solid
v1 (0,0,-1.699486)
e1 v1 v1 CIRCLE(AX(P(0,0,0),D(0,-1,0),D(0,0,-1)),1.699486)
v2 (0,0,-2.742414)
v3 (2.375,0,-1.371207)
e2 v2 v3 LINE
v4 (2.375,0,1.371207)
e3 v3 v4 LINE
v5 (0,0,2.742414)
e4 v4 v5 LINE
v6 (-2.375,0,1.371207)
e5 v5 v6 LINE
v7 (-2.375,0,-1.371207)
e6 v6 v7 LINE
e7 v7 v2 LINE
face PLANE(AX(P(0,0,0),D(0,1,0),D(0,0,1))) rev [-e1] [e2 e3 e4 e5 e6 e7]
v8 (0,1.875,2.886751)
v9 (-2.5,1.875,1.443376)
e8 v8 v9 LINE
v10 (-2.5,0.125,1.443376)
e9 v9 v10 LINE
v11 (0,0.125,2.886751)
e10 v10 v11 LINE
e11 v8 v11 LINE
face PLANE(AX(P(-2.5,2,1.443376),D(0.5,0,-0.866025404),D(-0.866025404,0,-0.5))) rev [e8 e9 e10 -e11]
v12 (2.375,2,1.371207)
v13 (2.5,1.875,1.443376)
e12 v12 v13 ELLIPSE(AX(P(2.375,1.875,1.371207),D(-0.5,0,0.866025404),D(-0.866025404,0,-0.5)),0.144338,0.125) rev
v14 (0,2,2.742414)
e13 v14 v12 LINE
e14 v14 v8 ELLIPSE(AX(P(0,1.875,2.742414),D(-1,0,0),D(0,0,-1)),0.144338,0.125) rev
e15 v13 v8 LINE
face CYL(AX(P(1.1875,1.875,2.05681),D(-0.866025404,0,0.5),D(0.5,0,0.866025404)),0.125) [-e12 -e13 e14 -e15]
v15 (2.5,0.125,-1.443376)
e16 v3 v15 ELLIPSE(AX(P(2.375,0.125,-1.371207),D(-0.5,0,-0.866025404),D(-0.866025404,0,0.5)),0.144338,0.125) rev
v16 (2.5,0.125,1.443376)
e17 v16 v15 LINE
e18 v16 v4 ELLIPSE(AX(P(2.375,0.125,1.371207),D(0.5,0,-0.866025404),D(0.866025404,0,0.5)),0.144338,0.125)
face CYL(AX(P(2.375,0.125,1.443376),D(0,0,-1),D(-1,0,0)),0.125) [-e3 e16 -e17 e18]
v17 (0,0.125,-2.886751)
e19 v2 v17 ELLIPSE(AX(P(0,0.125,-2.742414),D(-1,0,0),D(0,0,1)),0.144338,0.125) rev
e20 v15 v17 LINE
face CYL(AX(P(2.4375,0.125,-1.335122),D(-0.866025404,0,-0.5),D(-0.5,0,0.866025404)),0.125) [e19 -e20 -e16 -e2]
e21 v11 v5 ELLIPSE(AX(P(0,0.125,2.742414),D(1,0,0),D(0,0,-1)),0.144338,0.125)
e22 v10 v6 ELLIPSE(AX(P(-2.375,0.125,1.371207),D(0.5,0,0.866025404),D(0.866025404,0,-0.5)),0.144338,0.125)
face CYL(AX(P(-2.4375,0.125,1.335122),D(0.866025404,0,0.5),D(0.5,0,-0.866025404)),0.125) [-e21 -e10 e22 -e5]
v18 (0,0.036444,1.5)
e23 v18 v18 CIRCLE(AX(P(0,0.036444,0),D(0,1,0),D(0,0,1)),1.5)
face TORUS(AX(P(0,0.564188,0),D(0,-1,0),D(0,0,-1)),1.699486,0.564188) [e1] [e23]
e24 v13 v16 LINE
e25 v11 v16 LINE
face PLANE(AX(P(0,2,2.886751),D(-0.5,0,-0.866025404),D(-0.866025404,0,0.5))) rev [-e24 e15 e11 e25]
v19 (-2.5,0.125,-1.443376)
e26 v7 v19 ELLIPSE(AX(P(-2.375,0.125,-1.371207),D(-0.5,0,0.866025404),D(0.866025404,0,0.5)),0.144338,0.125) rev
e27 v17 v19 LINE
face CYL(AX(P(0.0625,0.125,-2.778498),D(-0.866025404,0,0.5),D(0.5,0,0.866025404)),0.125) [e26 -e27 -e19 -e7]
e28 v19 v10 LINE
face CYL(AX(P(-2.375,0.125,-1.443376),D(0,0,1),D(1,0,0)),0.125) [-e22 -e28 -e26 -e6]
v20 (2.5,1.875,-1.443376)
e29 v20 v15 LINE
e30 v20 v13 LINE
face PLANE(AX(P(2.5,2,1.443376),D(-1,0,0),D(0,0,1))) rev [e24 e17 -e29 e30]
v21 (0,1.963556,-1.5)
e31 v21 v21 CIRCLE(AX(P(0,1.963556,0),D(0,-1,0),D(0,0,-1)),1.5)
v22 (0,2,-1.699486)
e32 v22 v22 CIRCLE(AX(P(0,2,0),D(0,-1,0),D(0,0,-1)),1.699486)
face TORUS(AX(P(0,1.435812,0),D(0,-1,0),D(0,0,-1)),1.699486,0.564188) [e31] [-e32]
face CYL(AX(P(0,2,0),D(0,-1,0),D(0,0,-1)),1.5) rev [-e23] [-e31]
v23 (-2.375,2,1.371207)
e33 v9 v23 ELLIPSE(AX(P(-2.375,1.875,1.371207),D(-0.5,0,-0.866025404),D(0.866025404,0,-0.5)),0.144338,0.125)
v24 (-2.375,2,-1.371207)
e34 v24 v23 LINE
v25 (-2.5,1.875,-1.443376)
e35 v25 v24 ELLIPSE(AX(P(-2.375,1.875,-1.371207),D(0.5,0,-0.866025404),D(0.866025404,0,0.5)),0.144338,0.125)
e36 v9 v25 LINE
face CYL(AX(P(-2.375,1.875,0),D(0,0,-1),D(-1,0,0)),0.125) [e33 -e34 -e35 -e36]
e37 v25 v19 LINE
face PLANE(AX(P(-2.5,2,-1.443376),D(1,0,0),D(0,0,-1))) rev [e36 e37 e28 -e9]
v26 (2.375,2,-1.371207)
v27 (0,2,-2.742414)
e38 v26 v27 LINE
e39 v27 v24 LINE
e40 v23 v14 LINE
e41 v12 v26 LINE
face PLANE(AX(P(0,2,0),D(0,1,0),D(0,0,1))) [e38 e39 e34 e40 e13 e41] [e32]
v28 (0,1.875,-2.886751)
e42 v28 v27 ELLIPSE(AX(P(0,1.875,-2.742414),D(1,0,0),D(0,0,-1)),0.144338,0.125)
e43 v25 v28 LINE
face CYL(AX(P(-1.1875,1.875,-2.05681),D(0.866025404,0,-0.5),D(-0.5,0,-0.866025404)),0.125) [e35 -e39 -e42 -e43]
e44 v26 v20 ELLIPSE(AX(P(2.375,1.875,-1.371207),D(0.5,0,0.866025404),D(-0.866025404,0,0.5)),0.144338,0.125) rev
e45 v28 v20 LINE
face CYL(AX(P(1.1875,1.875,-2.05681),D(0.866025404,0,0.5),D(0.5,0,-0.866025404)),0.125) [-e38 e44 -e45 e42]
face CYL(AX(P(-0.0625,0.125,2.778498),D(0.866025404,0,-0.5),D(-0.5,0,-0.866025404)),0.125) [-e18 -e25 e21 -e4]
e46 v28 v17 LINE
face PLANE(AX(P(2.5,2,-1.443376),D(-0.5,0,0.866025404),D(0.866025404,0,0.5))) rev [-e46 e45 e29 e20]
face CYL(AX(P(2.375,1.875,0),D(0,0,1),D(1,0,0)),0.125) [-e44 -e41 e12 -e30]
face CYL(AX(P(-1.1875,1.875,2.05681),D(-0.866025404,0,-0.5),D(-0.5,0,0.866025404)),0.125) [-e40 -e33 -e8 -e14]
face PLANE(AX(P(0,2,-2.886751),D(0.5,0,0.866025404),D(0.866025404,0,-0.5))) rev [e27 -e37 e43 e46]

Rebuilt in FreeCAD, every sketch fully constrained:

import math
import FreeCAD as App
import Part
import Sketcher

V = App.Vector
Q = App.Units.Quantity


def edges_at(feature, points):
    """Names of the edges that pass closest to the given points."""
    edges = feature.Shape.Edges
    near = lambda p: min(range(len(edges)), key=lambda i: edges[i].distToShape(Part.Vertex(*p))[0])
    return sorted({f"Edge{near(p) + 1}" for p in points})

doc = App.newDocument("Part")
body = doc.addObject("PartDesign::Body", "Body")

# Sketch on XZ plane
sketch1 = body.newObject("Sketcher::SketchObject", "Sketch")
sketch1.AttachmentSupport = (doc.getObject("XZ_Plane"), [""])
sketch1.MapMode = "FlatFace"
sketch1.addGeometry(Part.LineSegment(V(0, -2.9, 0), V(-2.5, -1.4, 0)), False)
sketch1.addGeometry(Part.LineSegment(V(-2.5, -1.4, 0), V(-2.5, 1.4, 0)), False)
sketch1.addGeometry(Part.LineSegment(V(-2.5, 1.4, 0), V(0, 2.9, 0)), False)
sketch1.addGeometry(Part.LineSegment(V(0, 2.9, 0), V(2.5, 1.4, 0)), False)
sketch1.addGeometry(Part.LineSegment(V(2.5, 1.4, 0), V(2.5, -1.4, 0)), False)
sketch1.addGeometry(Part.LineSegment(V(2.5, -1.4, 0), V(0, -2.9, 0)), False)
sketch1.addGeometry(Part.Circle(V(0, 0, 0), V(0, 0, 1), 1.5), False)
sketch1.addConstraint(Sketcher.Constraint("Coincident", 0, 2, 1, 1))
sketch1.addConstraint(Sketcher.Constraint("Coincident", 1, 2, 2, 1))
sketch1.addConstraint(Sketcher.Constraint("Coincident", 2, 2, 3, 1))
sketch1.addConstraint(Sketcher.Constraint("Coincident", 3, 2, 4, 1))
sketch1.addConstraint(Sketcher.Constraint("Coincident", 4, 2, 5, 1))
sketch1.addConstraint(Sketcher.Constraint("Coincident", 5, 2, 0, 1))
sketch1.addConstraint(Sketcher.Constraint("Vertical", 1))
sketch1.addConstraint(Sketcher.Constraint("Vertical", 4))
sketch1.addConstraint(Sketcher.Constraint("Coincident", 6, 3, -1, 1))
sketch1.addConstraint(Sketcher.Constraint("Symmetric", 0, 2, 3, 2, -1, 1))
sketch1.addConstraint(Sketcher.Constraint("Symmetric", 2, 2, 5, 2, -1, 1))
sketch1.addConstraint(Sketcher.Constraint("PointOnObject", 2, 2, -2))
sketch1.addConstraint(Sketcher.Constraint("Parallel", 2, 5))
sketch1.addConstraint(Sketcher.Constraint("Horizontal", 1, 2, 3, 2))
sketch1.addConstraint(Sketcher.Constraint("Diameter", 6, Q("3 mm")))
sketch1.addConstraint(Sketcher.Constraint("Angle", 0, Q("150 deg")))
sketch1.addConstraint(Sketcher.Constraint("DistanceX", 1, 2, 3, 2, Q("5 mm")))
sketch1.addConstraint(Sketcher.Constraint("DistanceY", 1, 1, 1, 2, Q("2.886751 mm")))
pad1 = body.newObject("PartDesign::Pad", "Pad")
pad1.Profile = sketch1
pad1.Length = 2
pad1.Reversed = True
doc.recompute()

fillet = body.newObject("PartDesign::Fillet", "Fillet")
fillet.Base = (pad1, edges_at(pad1, [
    (-2.5, 2, 0),
    (-1.25, 2, 2.165),
    (1.25, 2, 2.165),
    (2.5, 2, 0),
    (1.25, 2, -2.165),
    (2.5, 0, 0),
    (1.25, 0, 2.165),
    (-1.25, 0, 2.165),
    (-1.25, 2, -2.165),
    (-2.5, 0, 0),
    (-1.25, 0, -2.165),
    (1.25, 0, -2.165),
]))
fillet.Radius = 0.125

# Sketch on YZ plane
sketch2 = body.newObject("Sketcher::SketchObject", "Sketch001")
sketch2.AttachmentSupport = (doc.getObject("YZ_Plane"), [""])
sketch2.MapMode = "FlatFace"
sketch2.addGeometry(Part.LineSegment(V(2, -1.7, 0), V(2, -1.76, 0)), False)
sketch2.addGeometry(Part.LineSegment(V(2, -1.76, 0), V(2.1, -1.76, 0)), False)
sketch2.addGeometry(Part.LineSegment(V(2.1, -1.76, 0), V(2.1, -1.19, 0)), False)
sketch2.addGeometry(Part.LineSegment(V(2.1, -1.19, 0), V(1.69, -1.19, 0)), False)
sketch2.addGeometry(Part.ArcOfCircle(Part.Circle(V(1.44, -1.7, 0), V(0, 0, 1), 0.56), math.radians(0), math.radians(64)), False)
sketch2.addGeometry(Part.LineSegment(V(0.31, -1.19, 0), V(-0.1, -1.19, 0)), False)
sketch2.addGeometry(Part.LineSegment(V(-0.1, -1.19, 0), V(-0.1, -1.76, 0)), False)
sketch2.addGeometry(Part.LineSegment(V(-0.1, -1.76, 0), V(0, -1.76, 0)), False)
sketch2.addGeometry(Part.LineSegment(V(0, -1.76, 0), V(0, -1.7, 0)), False)
sketch2.addGeometry(Part.ArcOfCircle(Part.Circle(V(0.56, -1.7, 0), V(0, 0, 1), 0.56), math.radians(116), math.radians(180)), False)
sketch2.addConstraint(Sketcher.Constraint("Coincident", 0, 2, 1, 1))
sketch2.addConstraint(Sketcher.Constraint("Coincident", 1, 2, 2, 1))
sketch2.addConstraint(Sketcher.Constraint("Coincident", 2, 2, 3, 1))
sketch2.addConstraint(Sketcher.Constraint("Coincident", 3, 2, 4, 2))
sketch2.addConstraint(Sketcher.Constraint("Tangent", 4, 1, 0, 1))
sketch2.addConstraint(Sketcher.Constraint("Coincident", 5, 2, 6, 1))
sketch2.addConstraint(Sketcher.Constraint("Coincident", 6, 2, 7, 1))
sketch2.addConstraint(Sketcher.Constraint("Coincident", 7, 2, 8, 1))
sketch2.addConstraint(Sketcher.Constraint("Tangent", 8, 2, 9, 2))
sketch2.addConstraint(Sketcher.Constraint("Coincident", 9, 1, 5, 1))
sketch2.addConstraint(Sketcher.Constraint("Vertical", 0))
sketch2.addConstraint(Sketcher.Constraint("Horizontal", 1))
sketch2.addConstraint(Sketcher.Constraint("Vertical", 2))
sketch2.addConstraint(Sketcher.Constraint("Horizontal", 3))
sketch2.addConstraint(Sketcher.Constraint("Horizontal", 5))
sketch2.addConstraint(Sketcher.Constraint("Vertical", 6))
sketch2.addConstraint(Sketcher.Constraint("Horizontal", 7))
sketch2.addConstraint(Sketcher.Constraint("Vertical", 8))
sketch2.addConstraint(Sketcher.Constraint("Equal", 4, 9))
sketch2.addConstraint(Sketcher.Constraint("PointOnObject", 7, 2, -2))
sketch2.addConstraint(Sketcher.Constraint("Horizontal", 4, 3, 9, 3))
sketch2.addConstraint(Sketcher.Constraint("Horizontal", 3, 2, 5, 2))
sketch2.addConstraint(Sketcher.Constraint("Horizontal", 1, 2, 6, 2))
sketch2.addConstraint(Sketcher.Constraint("Equal", 3, 5))
sketch2.addConstraint(Sketcher.Constraint("DistanceX", -1, 1, 0, 2, Q("2 mm")))
sketch2.addConstraint(Sketcher.Constraint("Radius", 4, Q("0.564188 mm")))
sketch2.addConstraint(Sketcher.Constraint("DistanceX", 1, 1, 1, 2, Q("0.10076 mm")))
sketch2.addConstraint(Sketcher.Constraint("DistanceX", 3, 2, 3, 1, Q("0.41435 mm")))
sketch2.addConstraint(Sketcher.Constraint("DistanceY", 2, 1, 2, 2, Q("0.567171 mm")))
sketch2.addConstraint(Sketcher.Constraint("DistanceY", 4, 3, -1, 1, Q("1.699486 mm")))
groove = body.newObject("PartDesign::Groove", "Groove")
groove.Profile = sketch2
groove.ReferenceAxis = (sketch2, ["H_Axis"])
groove.Angle = 360

doc.recompute()
